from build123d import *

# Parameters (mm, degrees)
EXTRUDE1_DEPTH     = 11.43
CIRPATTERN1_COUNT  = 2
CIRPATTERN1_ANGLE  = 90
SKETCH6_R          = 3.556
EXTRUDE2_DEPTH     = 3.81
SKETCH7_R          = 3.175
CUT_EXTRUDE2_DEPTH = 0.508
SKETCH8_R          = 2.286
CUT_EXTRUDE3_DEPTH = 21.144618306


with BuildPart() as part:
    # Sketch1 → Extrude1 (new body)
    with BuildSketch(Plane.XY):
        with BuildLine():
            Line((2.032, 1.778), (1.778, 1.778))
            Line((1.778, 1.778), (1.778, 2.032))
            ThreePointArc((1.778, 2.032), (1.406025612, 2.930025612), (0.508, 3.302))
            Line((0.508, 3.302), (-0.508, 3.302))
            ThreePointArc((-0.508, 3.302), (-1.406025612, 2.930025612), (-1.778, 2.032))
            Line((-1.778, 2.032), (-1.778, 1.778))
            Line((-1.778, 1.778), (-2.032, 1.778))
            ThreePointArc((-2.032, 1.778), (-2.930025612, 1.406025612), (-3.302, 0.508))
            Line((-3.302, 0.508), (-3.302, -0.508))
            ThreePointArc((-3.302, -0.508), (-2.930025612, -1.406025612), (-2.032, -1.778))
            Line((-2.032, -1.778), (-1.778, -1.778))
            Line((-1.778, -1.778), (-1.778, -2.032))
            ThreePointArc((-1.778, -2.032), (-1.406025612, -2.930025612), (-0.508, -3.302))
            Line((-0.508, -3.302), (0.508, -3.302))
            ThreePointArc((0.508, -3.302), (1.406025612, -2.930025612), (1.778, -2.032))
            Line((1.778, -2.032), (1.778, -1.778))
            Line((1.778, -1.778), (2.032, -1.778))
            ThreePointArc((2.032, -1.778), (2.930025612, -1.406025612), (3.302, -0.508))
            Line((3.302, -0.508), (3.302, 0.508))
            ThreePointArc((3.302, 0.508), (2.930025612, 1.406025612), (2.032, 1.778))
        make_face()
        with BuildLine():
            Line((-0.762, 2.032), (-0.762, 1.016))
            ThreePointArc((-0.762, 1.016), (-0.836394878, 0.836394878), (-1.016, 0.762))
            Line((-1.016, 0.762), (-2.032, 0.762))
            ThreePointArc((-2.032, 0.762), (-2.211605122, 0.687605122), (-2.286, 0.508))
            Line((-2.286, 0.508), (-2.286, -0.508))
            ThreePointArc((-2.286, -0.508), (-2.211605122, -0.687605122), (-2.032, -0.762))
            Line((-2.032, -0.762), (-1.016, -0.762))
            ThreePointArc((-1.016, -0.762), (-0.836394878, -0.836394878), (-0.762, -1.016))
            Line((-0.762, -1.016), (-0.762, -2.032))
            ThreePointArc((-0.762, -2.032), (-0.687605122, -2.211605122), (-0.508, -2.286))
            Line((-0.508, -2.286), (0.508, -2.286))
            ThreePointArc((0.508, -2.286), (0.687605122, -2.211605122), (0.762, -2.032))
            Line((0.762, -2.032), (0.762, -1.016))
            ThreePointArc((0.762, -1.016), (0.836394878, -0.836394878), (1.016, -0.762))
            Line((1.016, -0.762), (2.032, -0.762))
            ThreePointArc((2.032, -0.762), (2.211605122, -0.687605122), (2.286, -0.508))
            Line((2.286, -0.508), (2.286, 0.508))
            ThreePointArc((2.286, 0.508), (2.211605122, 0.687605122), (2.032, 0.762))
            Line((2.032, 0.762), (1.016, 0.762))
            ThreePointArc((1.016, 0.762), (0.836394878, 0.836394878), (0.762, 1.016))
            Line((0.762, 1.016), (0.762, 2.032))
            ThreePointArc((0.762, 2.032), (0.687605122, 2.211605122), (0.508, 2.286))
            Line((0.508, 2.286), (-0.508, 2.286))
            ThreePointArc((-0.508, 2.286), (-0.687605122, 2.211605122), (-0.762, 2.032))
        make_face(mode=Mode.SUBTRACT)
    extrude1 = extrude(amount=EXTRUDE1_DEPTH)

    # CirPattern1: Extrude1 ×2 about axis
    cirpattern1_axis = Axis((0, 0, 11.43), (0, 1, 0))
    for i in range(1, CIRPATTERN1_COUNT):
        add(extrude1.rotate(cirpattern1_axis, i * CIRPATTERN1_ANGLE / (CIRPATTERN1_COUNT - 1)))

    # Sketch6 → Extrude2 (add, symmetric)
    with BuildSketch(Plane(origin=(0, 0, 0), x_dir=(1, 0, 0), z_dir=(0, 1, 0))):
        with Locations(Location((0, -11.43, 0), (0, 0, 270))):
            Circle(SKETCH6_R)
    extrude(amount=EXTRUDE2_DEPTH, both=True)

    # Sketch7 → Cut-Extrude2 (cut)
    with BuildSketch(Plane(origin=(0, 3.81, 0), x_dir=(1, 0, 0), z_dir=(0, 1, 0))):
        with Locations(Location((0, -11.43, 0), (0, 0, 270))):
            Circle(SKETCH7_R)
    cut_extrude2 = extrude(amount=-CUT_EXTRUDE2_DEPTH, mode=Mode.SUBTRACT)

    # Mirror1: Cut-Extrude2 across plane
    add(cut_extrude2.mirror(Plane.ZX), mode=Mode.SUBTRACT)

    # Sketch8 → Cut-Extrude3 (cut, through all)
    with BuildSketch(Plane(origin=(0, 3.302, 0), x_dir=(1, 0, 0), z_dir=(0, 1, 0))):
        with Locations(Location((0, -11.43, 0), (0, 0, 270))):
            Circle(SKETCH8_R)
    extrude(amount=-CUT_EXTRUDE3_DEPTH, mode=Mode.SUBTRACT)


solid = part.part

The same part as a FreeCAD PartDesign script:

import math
import FreeCAD as App
import Part
import Sketcher
from FreeCAD import Vector
Q = App.Units.Quantity

doc = App.newDocument("Part")
body = doc.addObject("PartDesign::Body", "Body")

# Sketch on XY plane
sketch1 = doc.addObject("Sketcher::SketchObject", "Sketch")
body.addObject(sketch1)
sketch1.AttachmentSupport = (doc.XY_Plane, [""])
sketch1.MapMode = "FlatFace"
sketch1.addGeometry([
    Part.LineSegment(Vector(2.032, 1.778, 0), Vector(1.778, 1.778, 0)),  # 0
    Part.LineSegment(Vector(1.778, 1.778, 0), Vector(1.778, 2.032, 0)),  # 1
    Part.ArcOfCircle(Part.Circle(Vector(0.508, 2.032, 0), Vector(0, 0, 1), 1.27), math.radians(0), math.radians(90)),  # 2
    Part.LineSegment(Vector(0.508, 3.302, 0), Vector(-0.508, 3.302, 0)),  # 3
    Part.ArcOfCircle(Part.Circle(Vector(-0.508, 2.032, 0), Vector(0, 0, 1), 1.27), math.radians(90), math.radians(180)),  # 4
    Part.LineSegment(Vector(-1.778, 2.032, 0), Vector(-1.778, 1.778, 0)),  # 5
    Part.LineSegment(Vector(-1.778, 1.778, 0), Vector(-2.032, 1.778, 0)),  # 6
    Part.ArcOfCircle(Part.Circle(Vector(-2.032, 0.508, 0), Vector(0, 0, 1), 1.27), math.radians(90), math.radians(180)),  # 7
    Part.LineSegment(Vector(-3.302, 0.508, 0), Vector(-3.302, -0.508, 0)),  # 8
    Part.ArcOfCircle(Part.Circle(Vector(-2.032, -0.508, 0), Vector(0, 0, 1), 1.27), math.radians(180), math.radians(270)),  # 9
    Part.LineSegment(Vector(-2.032, -1.778, 0), Vector(-1.778, -1.778, 0)),  # 10
    Part.LineSegment(Vector(-1.778, -1.778, 0), Vector(-1.778, -2.032, 0)),  # 11
    Part.ArcOfCircle(Part.Circle(Vector(-0.508, -2.032, 0), Vector(0, 0, 1), 1.27), math.radians(180), math.radians(270)),  # 12
    Part.LineSegment(Vector(-0.508, -3.302, 0), Vector(0.508, -3.302, 0)),  # 13
    Part.ArcOfCircle(Part.Circle(Vector(0.508, -2.032, 0), Vector(0, 0, 1), 1.27), math.radians(-90), math.radians(0)),  # 14
    Part.LineSegment(Vector(1.778, -2.032, 0), Vector(1.778, -1.778, 0)),  # 15
    Part.LineSegment(Vector(1.778, -1.778, 0), Vector(2.032, -1.778, 0)),  # 16
    Part.ArcOfCircle(Part.Circle(Vector(2.032, -0.508, 0), Vector(0, 0, 1), 1.27), math.radians(-90), math.radians(0)),  # 17
    Part.LineSegment(Vector(3.302, -0.508, 0), Vector(3.302, 0.508, 0)),  # 18
    Part.ArcOfCircle(Part.Circle(Vector(2.032, 0.508, 0), Vector(0, 0, 1), 1.27), math.radians(0), math.radians(90)),  # 19
    Part.LineSegment(Vector(-0.762, 1.016, 0), Vector(-0.762, 2.032, 0)),  # 20
    Part.ArcOfCircle(Part.Circle(Vector(-0.508, 2.032, 0), Vector(0, 0, 1), 0.254), math.radians(90), math.radians(180)),  # 21
    Part.LineSegment(Vector(-0.508, 2.286, 0), Vector(0.508, 2.286, 0)),  # 22
    Part.ArcOfCircle(Part.Circle(Vector(0.508, 2.032, 0), Vector(0, 0, 1), 0.254), math.radians(0), math.radians(90)),  # 23
    Part.LineSegment(Vector(0.762, 2.032, 0), Vector(0.762, 1.016, 0)),  # 24
    Part.ArcOfCircle(Part.Circle(Vector(1.016, 1.016, 0), Vector(0, 0, 1), 0.254), math.radians(-180), math.radians(-90)),  # 25
    Part.LineSegment(Vector(1.016, 0.762, 0), Vector(2.032, 0.762, 0)),  # 26
    Part.ArcOfCircle(Part.Circle(Vector(2.032, 0.508, 0), Vector(0, 0, 1), 0.254), math.radians(0), math.radians(90)),  # 27
    Part.LineSegment(Vector(2.286, 0.508, 0), Vector(2.286, -0.508, 0)),  # 28
    Part.ArcOfCircle(Part.Circle(Vector(2.032, -0.508, 0), Vector(0, 0, 1), 0.254), math.radians(-90), math.radians(0)),  # 29
    Part.LineSegment(Vector(2.032, -0.762, 0), Vector(1.016, -0.762, 0)),  # 30
    Part.ArcOfCircle(Part.Circle(Vector(1.016, -1.016, 0), Vector(0, 0, 1), 0.254), math.radians(90), math.radians(180)),  # 31
    Part.LineSegment(Vector(0.762, -1.016, 0), Vector(0.762, -2.032, 0)),  # 32
    Part.ArcOfCircle(Part.Circle(Vector(0.508, -2.032, 0), Vector(0, 0, 1), 0.254), math.radians(-90), math.radians(0)),  # 33
    Part.LineSegment(Vector(0.508, -2.286, 0), Vector(-0.508, -2.286, 0)),  # 34
    Part.ArcOfCircle(Part.Circle(Vector(-0.508, -2.032, 0), Vector(0, 0, 1), 0.254), math.radians(-180), math.radians(-90)),  # 35
    Part.LineSegment(Vector(-0.762, -2.032, 0), Vector(-0.762, -1.016, 0)),  # 36
    Part.ArcOfCircle(Part.Circle(Vector(-1.016, -1.016, 0), Vector(0, 0, 1), 0.254), math.radians(0), math.radians(90)),  # 37
    Part.LineSegment(Vector(-1.016, -0.762, 0), Vector(-2.032, -0.762, 0)),  # 38
    Part.ArcOfCircle(Part.Circle(Vector(-2.032, -0.508, 0), Vector(0, 0, 1), 0.254), math.radians(-180), math.radians(-90)),  # 39
    Part.LineSegment(Vector(-2.286, -0.508, 0), Vector(-2.286, 0.508, 0)),  # 40
    Part.ArcOfCircle(Part.Circle(Vector(-2.032, 0.508, 0), Vector(0, 0, 1), 0.254), math.radians(90), math.radians(180)),  # 41
    Part.LineSegment(Vector(-2.032, 0.762, 0), Vector(-1.016, 0.762, 0)),  # 42
    Part.ArcOfCircle(Part.Circle(Vector(-1.016, 1.016, 0), Vector(0, 0, 1), 0.254), math.radians(-90), math.radians(0)),  # 43
], False)
sketch1.addConstraint([
    Sketcher.Constraint("Coincident", 0, 2, 1, 1),
    Sketcher.Constraint("Tangent", 1, 2, 2, 1),
    Sketcher.Constraint("Tangent", 2, 2, 3, 1),
    Sketcher.Constraint("Tangent", 3, 2, 4, 1),
    Sketcher.Constraint("Tangent", 4, 2, 5, 1),
    Sketcher.Constraint("Coincident", 5, 2, 6, 1),
    Sketcher.Constraint("Tangent", 6, 2, 7, 1),
    Sketcher.Constraint("Tangent", 7, 2, 8, 1),
    Sketcher.Constraint("Tangent", 8, 2, 9, 1),
    Sketcher.Constraint("Tangent", 9, 2, 10, 1),
    Sketcher.Constraint("Coincident", 10, 2, 11, 1),
    Sketcher.Constraint("Tangent", 11, 2, 12, 1),
    Sketcher.Constraint("Tangent", 12, 2, 13, 1),
    Sketcher.Constraint("Tangent", 13, 2, 14, 1),
    Sketcher.Constraint("Tangent", 14, 2, 15, 1),
    Sketcher.Constraint("Coincident", 15, 2, 16, 1),
    Sketcher.Constraint("Tangent", 16, 2, 17, 1),
    Sketcher.Constraint("Tangent", 17, 2, 18, 1),
    Sketcher.Constraint("Tangent", 18, 2, 19, 1),
    Sketcher.Constraint("Tangent", 19, 2, 0, 1),
    Sketcher.Constraint("Tangent", 20, 2, 21, 2),
    Sketcher.Constraint("Tangent", 21, 1, 22, 1),
    Sketcher.Constraint("Tangent", 22, 2, 23, 2),
    Sketcher.Constraint("Tangent", 23, 1, 24, 1),
    Sketcher.Constraint("Tangent", 24, 2, 25, 1),
    Sketcher.Constraint("Tangent", 25, 2, 26, 1),
    Sketcher.Constraint("Tangent", 26, 2, 27, 2),
    Sketcher.Constraint("Tangent", 27, 1, 28, 1),
    Sketcher.Constraint("Tangent", 28, 2, 29, 2),
    Sketcher.Constraint("Tangent", 29, 1, 30, 1),
    Sketcher.Constraint("Tangent", 30, 2, 31, 1),
    Sketcher.Constraint("Tangent", 31, 2, 32, 1),
    Sketcher.Constraint("Tangent", 32, 2, 33, 2),
    Sketcher.Constraint("Tangent", 33, 1, 34, 1),
    Sketcher.Constraint("Tangent", 34, 2, 35, 2),
    Sketcher.Constraint("Tangent", 35, 1, 36, 1),
    Sketcher.Constraint("Tangent", 36, 2, 37, 1),
    Sketcher.Constraint("Tangent", 37, 2, 38, 1),
    Sketcher.Constraint("Tangent", 38, 2, 39, 2),
    Sketcher.Constraint("Tangent", 39, 1, 40, 1),
    Sketcher.Constraint("Tangent", 40, 2, 41, 2),
    Sketcher.Constraint("Tangent", 41, 1, 42, 1),
    Sketcher.Constraint("Tangent", 42, 2, 43, 1),
    Sketcher.Constraint("Tangent", 43, 2, 20, 1),
    Sketcher.Constraint("Horizontal", 0),
    Sketcher.Constraint("Vertical", 1),
    Sketcher.Constraint("Horizontal", 3),
    Sketcher.Constraint("Vertical", 5),
    Sketcher.Constraint("Horizontal", 6),
    Sketcher.Constraint("Vertical", 8),
    Sketcher.Constraint("Horizontal", 10),
    Sketcher.Constraint("Vertical", 11),
    Sketcher.Constraint("Horizontal", 13),
    Sketcher.Constraint("Vertical", 15),
    Sketcher.Constraint("Horizontal", 16),
    Sketcher.Constraint("Vertical", 18),
    Sketcher.Constraint("Vertical", 20),
    Sketcher.Constraint("Horizontal", 22),
    Sketcher.Constraint("Vertical", 24),
    Sketcher.Constraint("Horizontal", 26),
    Sketcher.Constraint("Vertical", 28),
    Sketcher.Constraint("Horizontal", 30),
    Sketcher.Constraint("Vertical", 32),
    Sketcher.Constraint("Horizontal", 34),
    Sketcher.Constraint("Vertical", 36),
    Sketcher.Constraint("Horizontal", 38),
    Sketcher.Constraint("Vertical", 40),
    Sketcher.Constraint("Horizontal", 42),
    Sketcher.Constraint("Coincident", 21, 3, 4, 3),
    Sketcher.Constraint("Coincident", 23, 3, 2, 3),
    Sketcher.Constraint("Coincident", 27, 3, 19, 3),
    Sketcher.Constraint("Coincident", 29, 3, 17, 3),
    Sketcher.Constraint("Coincident", 33, 3, 14, 3),
    Sketcher.Constraint("Coincident", 35, 3, 12, 3),
    Sketcher.Constraint("Coincident", 39, 3, 9, 3),
    Sketcher.Constraint("Coincident", 41, 3, 7, 3),
    Sketcher.Constraint("Equal", 2, 4),
    Sketcher.Constraint("Equal", 4, 7),
    Sketcher.Constraint("Equal", 7, 9),
    Sketcher.Constraint("Equal", 9, 12),
    Sketcher.Constraint("Equal", 12, 14),
    Sketcher.Constraint("Equal", 14, 17),
    Sketcher.Constraint("Equal", 17, 19),
    Sketcher.Constraint("Equal", 23, 25),
    Sketcher.Constraint("Equal", 25, 27),
    Sketcher.Constraint("Equal", 29, 31),
    Sketcher.Constraint("Equal", 31, 33),
    Sketcher.Constraint("Equal", 35, 37),
    Sketcher.Constraint("Equal", 37, 39),
    Sketcher.Constraint("Equal", 41, 43),
    Sketcher.Constraint("Symmetric", 2, 3, 12, 3, -1, 1),
    Sketcher.Constraint("Symmetric", 7, 3, 17, 3, -1, 1),
    Sketcher.Constraint("Symmetric", 31, 3, 37, 3, -2),
    Sketcher.Constraint("Symmetric", 25, 3, 43, 3, -2),
    Sketcher.Constraint("Equal", 22, 26),
    Sketcher.Constraint("Equal", 16, 1),
    Sketcher.Constraint("Equal", 42, 8),
    Sketcher.Constraint("Radius", 2, Q("0.05 in")),
    Sketcher.Constraint("Radius", 21, Q("0.01 in")),
    Sketcher.Constraint("DistanceX", 0, 2, 0, 1, Q("0.01 in")),
])
pad1 = doc.addObject("PartDesign::Pad", "Pad")
body.addObject(pad1)
pad1.Profile = sketch1
pad1.Length = Q("0.45 in")
doc.recompute()

datumline = doc.addObject("PartDesign::Line", "DatumLine")
body.addObject(datumline)
datumline.Placement = App.Placement(Vector(0, 0, 11.43), App.Rotation(Vector(0, 0, 1), Vector(0, 1, 0)))
polarpattern = doc.addObject("PartDesign::PolarPattern", "PolarPattern")
body.addObject(polarpattern)
polarpattern.Originals = [pad1]
polarpattern.Axis = (datumline, [""])
polarpattern.Angle = 90
polarpattern.Occurrences = 2
body.Tip = polarpattern

# Sketch on XZ plane
sketch2 = doc.addObject("Sketcher::SketchObject", "Sketch001")
body.addObject(sketch2)
sketch2.AttachmentSupport = (doc.XZ_Plane, [""])
sketch2.MapMode = "FlatFace"
sketch2.addGeometry(Part.Circle(Vector(0, 11.43, 0), Vector(0, 0, 1), 3.556), False)
sketch2.addConstraint([
    Sketcher.Constraint("PointOnObject", 0, 3, -2),
    Sketcher.Constraint("Diameter", 0, Q("0.28 in")),
    Sketcher.Constraint("DistanceY", -1, 1, 0, 3, Q("0.45 in")),
])
pad2 = doc.addObject("PartDesign::Pad", "Pad001")
body.addObject(pad2)
pad2.Profile = sketch2
pad2.Length = Q("0.3 in")
pad2.Midplane = True

# Sketch on XZ plane
sketch3 = doc.addObject("Sketcher::SketchObject", "Sketch002")
body.addObject(sketch3)
sketch3.AttachmentSupport = (doc.XZ_Plane, [""])
sketch3.MapMode = "FlatFace"
sketch3.AttachmentOffset = App.Placement(Vector(0, 0, -0.15 * 25.4), App.Rotation())
sketch3.addGeometry(Part.Circle(Vector(0, 11.43, 0), Vector(0, 0, 1), 3.175), False)
sketch3.addConstraint([
    Sketcher.Constraint("PointOnObject", 0, 3, -2),
    Sketcher.Constraint("Diameter", 0, Q("0.25 in")),
    Sketcher.Constraint("DistanceY", -1, 1, 0, 3, Q("0.45 in")),
])
pocket1 = doc.addObject("PartDesign::Pocket", "Pocket")
body.addObject(pocket1)
pocket1.Profile = sketch3
pocket1.Length = Q("0.02 in")
pocket1.Reversed = True
doc.recompute()

mirrored = doc.addObject("PartDesign::Mirrored", "Mirrored")
body.addObject(mirrored)
mirrored.Originals = [pocket1]
mirrored.MirrorPlane = (doc.XZ_Plane, [""])
body.Tip = mirrored

# Sketch on XZ plane
sketch4 = doc.addObject("Sketcher::SketchObject", "Sketch003")
body.addObject(sketch4)
sketch4.AttachmentSupport = (doc.XZ_Plane, [""])
sketch4.MapMode = "FlatFace"
sketch4.AttachmentOffset = App.Placement(Vector(0, 0, -0.13 * 25.4), App.Rotation())
sketch4.addGeometry(Part.Circle(Vector(0, 11.43, 0), Vector(0, 0, 1), 2.286), False)
sketch4.addConstraint([
    Sketcher.Constraint("PointOnObject", 0, 3, -2),
    Sketcher.Constraint("Diameter", 0, Q("0.18 in")),
    Sketcher.Constraint("DistanceY", -1, 1, 0, 3, Q("0.45 in")),
])
pocket2 = doc.addObject("PartDesign::Pocket", "Pocket001")
body.addObject(pocket2)
pocket2.Profile = sketch4
pocket2.Type = "ThroughAll"
pocket2.Reversed = True

doc.recompute()
